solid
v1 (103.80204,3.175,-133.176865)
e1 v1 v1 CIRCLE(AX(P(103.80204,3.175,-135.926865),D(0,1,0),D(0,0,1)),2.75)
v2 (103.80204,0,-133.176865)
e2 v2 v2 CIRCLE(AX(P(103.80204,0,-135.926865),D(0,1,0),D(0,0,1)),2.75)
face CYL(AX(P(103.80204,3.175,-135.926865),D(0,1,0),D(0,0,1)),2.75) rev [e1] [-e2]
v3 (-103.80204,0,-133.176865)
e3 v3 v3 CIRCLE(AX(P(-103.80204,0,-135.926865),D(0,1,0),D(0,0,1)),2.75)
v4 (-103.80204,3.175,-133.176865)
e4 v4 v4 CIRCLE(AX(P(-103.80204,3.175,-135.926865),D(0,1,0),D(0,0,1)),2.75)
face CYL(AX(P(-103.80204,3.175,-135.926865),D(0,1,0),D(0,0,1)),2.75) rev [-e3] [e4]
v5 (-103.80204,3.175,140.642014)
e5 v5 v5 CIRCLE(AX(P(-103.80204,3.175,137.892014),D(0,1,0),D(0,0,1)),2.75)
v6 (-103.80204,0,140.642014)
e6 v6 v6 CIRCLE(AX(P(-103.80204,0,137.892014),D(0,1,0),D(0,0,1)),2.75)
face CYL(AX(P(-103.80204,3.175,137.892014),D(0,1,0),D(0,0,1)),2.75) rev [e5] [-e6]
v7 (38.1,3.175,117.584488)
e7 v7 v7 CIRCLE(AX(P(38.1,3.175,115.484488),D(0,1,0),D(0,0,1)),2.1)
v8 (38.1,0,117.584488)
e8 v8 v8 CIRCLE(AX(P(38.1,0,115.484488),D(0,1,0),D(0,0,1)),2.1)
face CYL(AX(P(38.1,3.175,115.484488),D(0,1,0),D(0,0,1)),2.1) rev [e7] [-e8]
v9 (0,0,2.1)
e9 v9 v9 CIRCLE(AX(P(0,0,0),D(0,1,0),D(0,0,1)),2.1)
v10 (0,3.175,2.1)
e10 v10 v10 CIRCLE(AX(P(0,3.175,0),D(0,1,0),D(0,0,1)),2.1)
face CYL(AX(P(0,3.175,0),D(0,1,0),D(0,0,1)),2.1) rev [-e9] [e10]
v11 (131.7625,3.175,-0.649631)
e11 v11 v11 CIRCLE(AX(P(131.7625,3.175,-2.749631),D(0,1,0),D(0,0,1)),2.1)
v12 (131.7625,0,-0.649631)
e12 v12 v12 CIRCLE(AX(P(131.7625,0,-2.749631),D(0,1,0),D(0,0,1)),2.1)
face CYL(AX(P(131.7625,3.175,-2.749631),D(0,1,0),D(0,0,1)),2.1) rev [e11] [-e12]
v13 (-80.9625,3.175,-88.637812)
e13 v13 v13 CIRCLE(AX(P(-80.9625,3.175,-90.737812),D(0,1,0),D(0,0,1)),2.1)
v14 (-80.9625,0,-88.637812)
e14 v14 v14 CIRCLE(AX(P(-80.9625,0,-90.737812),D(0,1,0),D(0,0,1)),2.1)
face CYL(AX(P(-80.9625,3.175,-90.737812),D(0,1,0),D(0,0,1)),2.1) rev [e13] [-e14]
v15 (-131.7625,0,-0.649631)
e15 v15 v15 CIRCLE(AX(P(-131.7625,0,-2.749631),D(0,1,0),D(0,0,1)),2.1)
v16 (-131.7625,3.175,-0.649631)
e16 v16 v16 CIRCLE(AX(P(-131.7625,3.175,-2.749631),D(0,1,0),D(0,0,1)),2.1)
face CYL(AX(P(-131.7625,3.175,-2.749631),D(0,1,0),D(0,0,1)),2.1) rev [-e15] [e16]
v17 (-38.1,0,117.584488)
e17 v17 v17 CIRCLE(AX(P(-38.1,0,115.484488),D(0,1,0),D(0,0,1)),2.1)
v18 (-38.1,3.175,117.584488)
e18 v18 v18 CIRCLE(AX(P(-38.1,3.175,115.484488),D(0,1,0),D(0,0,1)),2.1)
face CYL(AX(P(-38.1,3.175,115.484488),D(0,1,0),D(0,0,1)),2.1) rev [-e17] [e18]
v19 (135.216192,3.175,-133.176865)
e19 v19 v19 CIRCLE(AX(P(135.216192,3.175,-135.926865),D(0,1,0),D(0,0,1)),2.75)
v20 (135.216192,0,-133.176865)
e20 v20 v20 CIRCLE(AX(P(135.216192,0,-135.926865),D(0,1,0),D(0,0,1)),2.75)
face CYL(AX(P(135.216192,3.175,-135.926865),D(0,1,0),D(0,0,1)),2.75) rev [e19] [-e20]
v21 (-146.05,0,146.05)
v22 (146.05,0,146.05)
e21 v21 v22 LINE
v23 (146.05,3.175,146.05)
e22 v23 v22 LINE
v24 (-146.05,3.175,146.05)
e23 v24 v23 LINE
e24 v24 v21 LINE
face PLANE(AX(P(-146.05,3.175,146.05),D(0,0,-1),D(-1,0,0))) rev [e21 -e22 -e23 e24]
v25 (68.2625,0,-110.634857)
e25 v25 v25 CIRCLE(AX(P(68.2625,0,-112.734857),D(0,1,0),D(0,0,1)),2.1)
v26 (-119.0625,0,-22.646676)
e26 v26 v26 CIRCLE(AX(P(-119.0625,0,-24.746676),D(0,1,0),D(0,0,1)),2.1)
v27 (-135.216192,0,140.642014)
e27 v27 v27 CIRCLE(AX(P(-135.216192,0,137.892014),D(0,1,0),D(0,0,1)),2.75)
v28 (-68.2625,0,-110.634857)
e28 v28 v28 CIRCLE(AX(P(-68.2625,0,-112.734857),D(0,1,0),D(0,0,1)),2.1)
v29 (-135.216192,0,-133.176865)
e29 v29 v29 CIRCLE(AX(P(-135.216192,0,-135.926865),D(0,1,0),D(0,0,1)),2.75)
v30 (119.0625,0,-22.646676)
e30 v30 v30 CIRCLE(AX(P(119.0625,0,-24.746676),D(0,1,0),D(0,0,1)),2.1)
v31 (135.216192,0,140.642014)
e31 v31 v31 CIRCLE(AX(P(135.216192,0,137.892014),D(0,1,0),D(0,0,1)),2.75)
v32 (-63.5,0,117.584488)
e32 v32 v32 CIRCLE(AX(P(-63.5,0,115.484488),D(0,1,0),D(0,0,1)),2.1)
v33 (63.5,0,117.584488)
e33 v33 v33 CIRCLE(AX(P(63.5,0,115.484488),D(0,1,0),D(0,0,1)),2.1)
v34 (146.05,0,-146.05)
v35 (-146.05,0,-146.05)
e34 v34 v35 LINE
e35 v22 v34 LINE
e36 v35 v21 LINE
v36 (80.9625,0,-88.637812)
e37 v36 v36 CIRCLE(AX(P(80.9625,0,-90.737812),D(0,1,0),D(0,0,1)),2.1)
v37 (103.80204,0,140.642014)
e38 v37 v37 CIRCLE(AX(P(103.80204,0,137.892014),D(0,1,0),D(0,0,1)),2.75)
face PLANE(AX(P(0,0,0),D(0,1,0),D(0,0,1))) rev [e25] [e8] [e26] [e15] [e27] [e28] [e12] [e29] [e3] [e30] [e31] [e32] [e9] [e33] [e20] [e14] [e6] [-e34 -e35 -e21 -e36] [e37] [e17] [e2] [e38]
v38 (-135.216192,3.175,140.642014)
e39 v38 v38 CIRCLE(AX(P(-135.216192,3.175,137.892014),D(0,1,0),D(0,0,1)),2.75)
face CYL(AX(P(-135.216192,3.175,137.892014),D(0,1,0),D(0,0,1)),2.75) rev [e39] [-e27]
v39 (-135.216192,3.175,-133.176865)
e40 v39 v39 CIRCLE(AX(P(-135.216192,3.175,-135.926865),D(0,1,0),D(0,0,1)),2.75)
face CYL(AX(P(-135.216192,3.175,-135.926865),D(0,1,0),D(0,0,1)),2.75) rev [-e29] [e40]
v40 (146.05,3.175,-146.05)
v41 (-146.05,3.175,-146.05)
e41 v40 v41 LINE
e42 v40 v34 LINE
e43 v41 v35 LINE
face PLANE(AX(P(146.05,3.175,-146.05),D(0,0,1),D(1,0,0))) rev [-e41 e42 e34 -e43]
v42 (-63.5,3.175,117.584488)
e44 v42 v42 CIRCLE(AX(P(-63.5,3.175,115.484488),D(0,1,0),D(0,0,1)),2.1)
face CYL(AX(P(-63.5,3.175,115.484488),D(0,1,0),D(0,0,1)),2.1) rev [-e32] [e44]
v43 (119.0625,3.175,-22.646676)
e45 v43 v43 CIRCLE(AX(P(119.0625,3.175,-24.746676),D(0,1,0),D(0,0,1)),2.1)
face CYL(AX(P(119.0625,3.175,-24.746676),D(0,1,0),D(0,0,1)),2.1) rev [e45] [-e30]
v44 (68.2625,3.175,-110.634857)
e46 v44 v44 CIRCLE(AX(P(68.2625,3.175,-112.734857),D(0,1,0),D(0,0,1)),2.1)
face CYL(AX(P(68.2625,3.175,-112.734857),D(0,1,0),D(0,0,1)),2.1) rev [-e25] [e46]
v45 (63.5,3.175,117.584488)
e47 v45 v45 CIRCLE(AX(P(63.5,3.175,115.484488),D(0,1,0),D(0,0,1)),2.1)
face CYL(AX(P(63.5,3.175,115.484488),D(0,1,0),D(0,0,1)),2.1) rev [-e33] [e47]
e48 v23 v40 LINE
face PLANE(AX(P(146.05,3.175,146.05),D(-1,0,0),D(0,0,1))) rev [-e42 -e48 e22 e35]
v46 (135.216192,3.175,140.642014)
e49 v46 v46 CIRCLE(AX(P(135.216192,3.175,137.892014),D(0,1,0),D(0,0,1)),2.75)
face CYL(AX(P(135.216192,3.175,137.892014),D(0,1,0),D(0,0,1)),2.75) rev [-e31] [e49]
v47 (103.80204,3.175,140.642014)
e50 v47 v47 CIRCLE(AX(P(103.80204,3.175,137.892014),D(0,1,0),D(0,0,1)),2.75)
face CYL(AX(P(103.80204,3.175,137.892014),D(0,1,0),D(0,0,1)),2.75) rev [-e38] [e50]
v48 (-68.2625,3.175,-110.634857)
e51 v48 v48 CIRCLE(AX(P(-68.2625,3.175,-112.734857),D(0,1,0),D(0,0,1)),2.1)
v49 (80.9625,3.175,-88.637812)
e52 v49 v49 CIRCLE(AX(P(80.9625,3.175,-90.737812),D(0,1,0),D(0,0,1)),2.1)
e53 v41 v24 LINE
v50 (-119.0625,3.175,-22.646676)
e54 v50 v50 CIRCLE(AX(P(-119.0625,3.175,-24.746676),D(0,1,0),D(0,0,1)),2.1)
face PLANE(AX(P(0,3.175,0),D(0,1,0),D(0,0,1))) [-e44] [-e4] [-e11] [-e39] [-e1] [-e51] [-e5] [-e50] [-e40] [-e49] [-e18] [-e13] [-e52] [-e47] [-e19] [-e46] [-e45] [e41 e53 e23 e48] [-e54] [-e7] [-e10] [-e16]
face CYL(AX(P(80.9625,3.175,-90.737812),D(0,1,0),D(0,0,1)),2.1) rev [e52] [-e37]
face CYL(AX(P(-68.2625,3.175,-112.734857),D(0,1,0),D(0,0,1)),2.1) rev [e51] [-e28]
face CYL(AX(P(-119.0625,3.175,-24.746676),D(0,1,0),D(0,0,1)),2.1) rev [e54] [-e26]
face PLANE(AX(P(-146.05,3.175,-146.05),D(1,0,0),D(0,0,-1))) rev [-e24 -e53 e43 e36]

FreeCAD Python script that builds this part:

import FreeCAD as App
import Part
import Sketcher
Q = App.Units.Quantity

doc = App.newDocument("Part")
body = doc.addObject("PartDesign::Body", "Body")

# Sketch on XZ plane
sketch1 = body.newObject("Sketcher::SketchObject", "Sketch")
sketch1.AttachmentSupport = (doc.getObject("XZ_Plane"), [""])
sketch1.MapMode = "FlatFace"
sketch1.addGeometry([
    Part.LineSegment(App.Vector(-146, -146, 0), App.Vector(-146, 146, 0)),
    Part.LineSegment(App.Vector(-146, 146, 0), App.Vector(146, 146, 0)),
    Part.LineSegment(App.Vector(146, 146, 0), App.Vector(146, -146, 0)),
    Part.LineSegment(App.Vector(146, -146, 0), App.Vector(-146, -146, 0)),
], False)
sketch1.addConstraint([
    Sketcher.Constraint("Coincident", 0, 2, 1, 1),
    Sketcher.Constraint("Coincident", 1, 2, 2, 1),
    Sketcher.Constraint("Coincident", 2, 2, 3, 1),
    Sketcher.Constraint("Coincident", 3, 2, 0, 1),
    Sketcher.Constraint("Vertical", 0),
    Sketcher.Constraint("Horizontal", 1),
    Sketcher.Constraint("Vertical", 2),
    Sketcher.Constraint("Horizontal", 3),
    Sketcher.Constraint("Symmetric", 0, 2, 2, 2, -1, 1),
    Sketcher.Constraint("Equal", 3, 0),
    Sketcher.Constraint("DistanceX", 1, 1, 1, 2, Q("11.5 in")),
])
pad1 = body.newObject("PartDesign::Pad", "Pad")
pad1.Profile = sketch1
pad1.Length = Q("0.125 in")
pad1.Reversed = True

# Sketch on XZ plane
sketch2 = body.newObject("Sketcher::SketchObject", "Sketch001")
sketch2.AttachmentSupport = (doc.getObject("XZ_Plane"), [""])
sketch2.MapMode = "FlatFace"
sketch2.AttachmentOffset = App.Placement(App.Vector(0, 0, -0.125 * 25.4), App.Rotation())
sketch2.addGeometry([
    Part.Circle(App.Vector(-63.5, 115.5, 0), App.Vector(0, 0, 1), 2.1),  # 0
    Part.Circle(App.Vector(-38.1, 115.5, 0), App.Vector(0, 0, 1), 2.1),  # 1
    Part.Circle(App.Vector(38.1, 115.5, 0), App.Vector(0, 0, 1), 2.1),  # 2
    Part.Circle(App.Vector(63.5, 115.5, 0), App.Vector(0, 0, 1), 2.1),  # 3
    Part.Circle(App.Vector(-68.3, -112.7, 0), App.Vector(0, 0, 1), 2.1),  # 4
    Part.Circle(App.Vector(-81, -90.7, 0), App.Vector(0, 0, 1), 2.1),  # 5
    Part.Circle(App.Vector(-119.1, -24.7, 0), App.Vector(0, 0, 1), 2.1),  # 6
    Part.Circle(App.Vector(-131.8, -2.7, 0), App.Vector(0, 0, 1), 2.1),  # 7
    Part.Circle(App.Vector(131.8, -2.7, 0), App.Vector(0, 0, 1), 2.1),  # 8
    Part.Circle(App.Vector(119.1, -24.7, 0), App.Vector(0, 0, 1), 2.1),  # 9
    Part.Circle(App.Vector(81, -90.7, 0), App.Vector(0, 0, 1), 2.1),  # 10
    Part.Circle(App.Vector(68.3, -112.7, 0), App.Vector(0, 0, 1), 2.1),  # 11
    Part.Circle(App.Vector(0, 0, 0), App.Vector(0, 0, 1), 2.1),  # 12
], False)
sketch2.addConstraint([
    Sketcher.Constraint("Coincident", 12, 3, -1, 1),
    Sketcher.Constraint("Equal", 0, 1),
    Sketcher.Constraint("Equal", 1, 2),
    Sketcher.Constraint("Equal", 2, 3),
    Sketcher.Constraint("Equal", 3, 4),
    Sketcher.Constraint("Equal", 4, 5),
    Sketcher.Constraint("Equal", 5, 6),
    Sketcher.Constraint("Equal", 6, 7),
    Sketcher.Constraint("Equal", 7, 8),
    Sketcher.Constraint("Equal", 8, 9),
    Sketcher.Constraint("Equal", 9, 10),
    Sketcher.Constraint("Equal", 10, 11),
    Sketcher.Constraint("Equal", 11, 12),
    Sketcher.Constraint("Symmetric", 1, 3, 2, 3, -2),
    Sketcher.Constraint("Symmetric", 0, 3, 3, 3, -2),
    Sketcher.Constraint("Symmetric", 7, 3, 8, 3, -2),
    Sketcher.Constraint("Symmetric", 6, 3, 9, 3, -2),
    Sketcher.Constraint("Symmetric", 5, 3, 10, 3, -2),
    Sketcher.Constraint("Symmetric", 4, 3, 11, 3, -2),
    Sketcher.Constraint("Horizontal", 0, 3, 1, 3),
    Sketcher.Constraint("DistanceX", 0, 3, 1, 3, Q("1 in")),
    Sketcher.Constraint("DistanceX", 1, 3, 2, 3, Q("3 in")),
    Sketcher.Constraint("DistanceX", 6, 3, 4, 3, Q("2 in")),
    Sketcher.Constraint("DistanceX", 7, 3, 5, 3, Q("2 in")),
    Sketcher.Constraint("DistanceX", 5, 3, 4, 3, Q("0.5 in")),
    Sketcher.Constraint("Diameter", 0, Q("4.2 mm")),
    Sketcher.Constraint("DistanceX", 4, 3, -1, 1, Q("2.6875 in")),
    Sketcher.Constraint("DistanceY", 5, 3, 0, 3, Q("206.222299 mm")),
    Sketcher.Constraint("DistanceY", 5, 3, -1, 1, Q("90.737812 mm")),
    Sketcher.Constraint("DistanceY", 7, 3, -1, 1, Q("2.749631 mm")),
    Sketcher.Constraint("DistanceY", 4, 3, 6, 3, Q("87.988181 mm")),
    Sketcher.Constraint("DistanceY", 4, 3, -1, 1, Q("112.734857 mm")),
])
doc.recompute()
hole = body.newObject("PartDesign::Hole", "Hole")
hole.Profile = sketch2
hole.ThreadType = "None"
hole.Diameter = 4.2
hole.DepthType = "ThroughAll"
hole.Reversed = True

# Sketch on XZ plane
sketch3 = body.newObject("Sketcher::SketchObject", "Sketch002")
sketch3.AttachmentSupport = (doc.getObject("XZ_Plane"), [""])
sketch3.MapMode = "FlatFace"
sketch3.AttachmentOffset = App.Placement(App.Vector(0, 0, -0.125 * 25.4), App.Rotation())
sketch3.addGeometry([
    Part.Circle(App.Vector(-135.2, 137.9, 0), App.Vector(0, 0, 1), 2.8),  # 0
    Part.Circle(App.Vector(-103.8, 137.9, 0), App.Vector(0, 0, 1), 2.8),  # 1
    Part.Circle(App.Vector(103.8, 137.9, 0), App.Vector(0, 0, 1), 2.8),  # 2
    Part.Circle(App.Vector(135.2, 137.9, 0), App.Vector(0, 0, 1), 2.8),  # 3
    Part.Circle(App.Vector(103.8, -135.9, 0), App.Vector(0, 0, 1), 2.8),  # 4
    Part.Circle(App.Vector(135.2, -135.9, 0), App.Vector(0, 0, 1), 2.8),  # 5
    Part.Circle(App.Vector(-135.2, -135.9, 0), App.Vector(0, 0, 1), 2.8),  # 6
    Part.Circle(App.Vector(-103.8, -135.9, 0), App.Vector(0, 0, 1), 2.8),  # 7
], False)
sketch3.addConstraint([
    Sketcher.Constraint("Equal", 0, 1),
    Sketcher.Constraint("Equal", 1, 2),
    Sketcher.Constraint("Equal", 2, 3),
    Sketcher.Constraint("Equal", 3, 4),
    Sketcher.Constraint("Equal", 4, 5),
    Sketcher.Constraint("Equal", 5, 6),
    Sketcher.Constraint("Equal", 6, 7),
    Sketcher.Constraint("Symmetric", 1, 3, 2, 3, -2),
    Sketcher.Constraint("Symmetric", 0, 3, 3, 3, -2),
    Sketcher.Constraint("Symmetric", 5, 3, 6, 3, -2),
    Sketcher.Constraint("Symmetric", 4, 3, 7, 3, -2),
    Sketcher.Constraint("Horizontal", 0, 3, 1, 3),
    Sketcher.Constraint("Horizontal", 4, 3, 5, 3),
    Sketcher.Constraint("Vertical", 2, 3, 4, 3),
    Sketcher.Constraint("Vertical", 3, 3, 5, 3),
    Sketcher.Constraint("Diameter", 0, Q("5.5 mm")),
    Sketcher.Constraint("DistanceX", 0, 3, -1, 1, Q("135.216192 mm")),
    Sketcher.Constraint("DistanceX", 1, 3, -1, 1, Q("103.80204 mm")),
    Sketcher.Constraint("DistanceY", 4, 3, 2, 3, Q("273.818879 mm")),
    Sketcher.Constraint("DistanceY", -1, 1, 0, 3, Q("137.892014 mm")),
])
doc.recompute()
hole2 = body.newObject("PartDesign::Hole", "Hole001")
hole2.Profile = sketch3
hole2.ThreadType = "None"
hole2.Diameter = 5.5
hole2.DepthType = "Dimension"
hole2.Depth = Q("1 in")
hole2.DrillPoint = "Angled"
hole2.DrillPointAngle = 118
hole2.Reversed = True

doc.recompute()
